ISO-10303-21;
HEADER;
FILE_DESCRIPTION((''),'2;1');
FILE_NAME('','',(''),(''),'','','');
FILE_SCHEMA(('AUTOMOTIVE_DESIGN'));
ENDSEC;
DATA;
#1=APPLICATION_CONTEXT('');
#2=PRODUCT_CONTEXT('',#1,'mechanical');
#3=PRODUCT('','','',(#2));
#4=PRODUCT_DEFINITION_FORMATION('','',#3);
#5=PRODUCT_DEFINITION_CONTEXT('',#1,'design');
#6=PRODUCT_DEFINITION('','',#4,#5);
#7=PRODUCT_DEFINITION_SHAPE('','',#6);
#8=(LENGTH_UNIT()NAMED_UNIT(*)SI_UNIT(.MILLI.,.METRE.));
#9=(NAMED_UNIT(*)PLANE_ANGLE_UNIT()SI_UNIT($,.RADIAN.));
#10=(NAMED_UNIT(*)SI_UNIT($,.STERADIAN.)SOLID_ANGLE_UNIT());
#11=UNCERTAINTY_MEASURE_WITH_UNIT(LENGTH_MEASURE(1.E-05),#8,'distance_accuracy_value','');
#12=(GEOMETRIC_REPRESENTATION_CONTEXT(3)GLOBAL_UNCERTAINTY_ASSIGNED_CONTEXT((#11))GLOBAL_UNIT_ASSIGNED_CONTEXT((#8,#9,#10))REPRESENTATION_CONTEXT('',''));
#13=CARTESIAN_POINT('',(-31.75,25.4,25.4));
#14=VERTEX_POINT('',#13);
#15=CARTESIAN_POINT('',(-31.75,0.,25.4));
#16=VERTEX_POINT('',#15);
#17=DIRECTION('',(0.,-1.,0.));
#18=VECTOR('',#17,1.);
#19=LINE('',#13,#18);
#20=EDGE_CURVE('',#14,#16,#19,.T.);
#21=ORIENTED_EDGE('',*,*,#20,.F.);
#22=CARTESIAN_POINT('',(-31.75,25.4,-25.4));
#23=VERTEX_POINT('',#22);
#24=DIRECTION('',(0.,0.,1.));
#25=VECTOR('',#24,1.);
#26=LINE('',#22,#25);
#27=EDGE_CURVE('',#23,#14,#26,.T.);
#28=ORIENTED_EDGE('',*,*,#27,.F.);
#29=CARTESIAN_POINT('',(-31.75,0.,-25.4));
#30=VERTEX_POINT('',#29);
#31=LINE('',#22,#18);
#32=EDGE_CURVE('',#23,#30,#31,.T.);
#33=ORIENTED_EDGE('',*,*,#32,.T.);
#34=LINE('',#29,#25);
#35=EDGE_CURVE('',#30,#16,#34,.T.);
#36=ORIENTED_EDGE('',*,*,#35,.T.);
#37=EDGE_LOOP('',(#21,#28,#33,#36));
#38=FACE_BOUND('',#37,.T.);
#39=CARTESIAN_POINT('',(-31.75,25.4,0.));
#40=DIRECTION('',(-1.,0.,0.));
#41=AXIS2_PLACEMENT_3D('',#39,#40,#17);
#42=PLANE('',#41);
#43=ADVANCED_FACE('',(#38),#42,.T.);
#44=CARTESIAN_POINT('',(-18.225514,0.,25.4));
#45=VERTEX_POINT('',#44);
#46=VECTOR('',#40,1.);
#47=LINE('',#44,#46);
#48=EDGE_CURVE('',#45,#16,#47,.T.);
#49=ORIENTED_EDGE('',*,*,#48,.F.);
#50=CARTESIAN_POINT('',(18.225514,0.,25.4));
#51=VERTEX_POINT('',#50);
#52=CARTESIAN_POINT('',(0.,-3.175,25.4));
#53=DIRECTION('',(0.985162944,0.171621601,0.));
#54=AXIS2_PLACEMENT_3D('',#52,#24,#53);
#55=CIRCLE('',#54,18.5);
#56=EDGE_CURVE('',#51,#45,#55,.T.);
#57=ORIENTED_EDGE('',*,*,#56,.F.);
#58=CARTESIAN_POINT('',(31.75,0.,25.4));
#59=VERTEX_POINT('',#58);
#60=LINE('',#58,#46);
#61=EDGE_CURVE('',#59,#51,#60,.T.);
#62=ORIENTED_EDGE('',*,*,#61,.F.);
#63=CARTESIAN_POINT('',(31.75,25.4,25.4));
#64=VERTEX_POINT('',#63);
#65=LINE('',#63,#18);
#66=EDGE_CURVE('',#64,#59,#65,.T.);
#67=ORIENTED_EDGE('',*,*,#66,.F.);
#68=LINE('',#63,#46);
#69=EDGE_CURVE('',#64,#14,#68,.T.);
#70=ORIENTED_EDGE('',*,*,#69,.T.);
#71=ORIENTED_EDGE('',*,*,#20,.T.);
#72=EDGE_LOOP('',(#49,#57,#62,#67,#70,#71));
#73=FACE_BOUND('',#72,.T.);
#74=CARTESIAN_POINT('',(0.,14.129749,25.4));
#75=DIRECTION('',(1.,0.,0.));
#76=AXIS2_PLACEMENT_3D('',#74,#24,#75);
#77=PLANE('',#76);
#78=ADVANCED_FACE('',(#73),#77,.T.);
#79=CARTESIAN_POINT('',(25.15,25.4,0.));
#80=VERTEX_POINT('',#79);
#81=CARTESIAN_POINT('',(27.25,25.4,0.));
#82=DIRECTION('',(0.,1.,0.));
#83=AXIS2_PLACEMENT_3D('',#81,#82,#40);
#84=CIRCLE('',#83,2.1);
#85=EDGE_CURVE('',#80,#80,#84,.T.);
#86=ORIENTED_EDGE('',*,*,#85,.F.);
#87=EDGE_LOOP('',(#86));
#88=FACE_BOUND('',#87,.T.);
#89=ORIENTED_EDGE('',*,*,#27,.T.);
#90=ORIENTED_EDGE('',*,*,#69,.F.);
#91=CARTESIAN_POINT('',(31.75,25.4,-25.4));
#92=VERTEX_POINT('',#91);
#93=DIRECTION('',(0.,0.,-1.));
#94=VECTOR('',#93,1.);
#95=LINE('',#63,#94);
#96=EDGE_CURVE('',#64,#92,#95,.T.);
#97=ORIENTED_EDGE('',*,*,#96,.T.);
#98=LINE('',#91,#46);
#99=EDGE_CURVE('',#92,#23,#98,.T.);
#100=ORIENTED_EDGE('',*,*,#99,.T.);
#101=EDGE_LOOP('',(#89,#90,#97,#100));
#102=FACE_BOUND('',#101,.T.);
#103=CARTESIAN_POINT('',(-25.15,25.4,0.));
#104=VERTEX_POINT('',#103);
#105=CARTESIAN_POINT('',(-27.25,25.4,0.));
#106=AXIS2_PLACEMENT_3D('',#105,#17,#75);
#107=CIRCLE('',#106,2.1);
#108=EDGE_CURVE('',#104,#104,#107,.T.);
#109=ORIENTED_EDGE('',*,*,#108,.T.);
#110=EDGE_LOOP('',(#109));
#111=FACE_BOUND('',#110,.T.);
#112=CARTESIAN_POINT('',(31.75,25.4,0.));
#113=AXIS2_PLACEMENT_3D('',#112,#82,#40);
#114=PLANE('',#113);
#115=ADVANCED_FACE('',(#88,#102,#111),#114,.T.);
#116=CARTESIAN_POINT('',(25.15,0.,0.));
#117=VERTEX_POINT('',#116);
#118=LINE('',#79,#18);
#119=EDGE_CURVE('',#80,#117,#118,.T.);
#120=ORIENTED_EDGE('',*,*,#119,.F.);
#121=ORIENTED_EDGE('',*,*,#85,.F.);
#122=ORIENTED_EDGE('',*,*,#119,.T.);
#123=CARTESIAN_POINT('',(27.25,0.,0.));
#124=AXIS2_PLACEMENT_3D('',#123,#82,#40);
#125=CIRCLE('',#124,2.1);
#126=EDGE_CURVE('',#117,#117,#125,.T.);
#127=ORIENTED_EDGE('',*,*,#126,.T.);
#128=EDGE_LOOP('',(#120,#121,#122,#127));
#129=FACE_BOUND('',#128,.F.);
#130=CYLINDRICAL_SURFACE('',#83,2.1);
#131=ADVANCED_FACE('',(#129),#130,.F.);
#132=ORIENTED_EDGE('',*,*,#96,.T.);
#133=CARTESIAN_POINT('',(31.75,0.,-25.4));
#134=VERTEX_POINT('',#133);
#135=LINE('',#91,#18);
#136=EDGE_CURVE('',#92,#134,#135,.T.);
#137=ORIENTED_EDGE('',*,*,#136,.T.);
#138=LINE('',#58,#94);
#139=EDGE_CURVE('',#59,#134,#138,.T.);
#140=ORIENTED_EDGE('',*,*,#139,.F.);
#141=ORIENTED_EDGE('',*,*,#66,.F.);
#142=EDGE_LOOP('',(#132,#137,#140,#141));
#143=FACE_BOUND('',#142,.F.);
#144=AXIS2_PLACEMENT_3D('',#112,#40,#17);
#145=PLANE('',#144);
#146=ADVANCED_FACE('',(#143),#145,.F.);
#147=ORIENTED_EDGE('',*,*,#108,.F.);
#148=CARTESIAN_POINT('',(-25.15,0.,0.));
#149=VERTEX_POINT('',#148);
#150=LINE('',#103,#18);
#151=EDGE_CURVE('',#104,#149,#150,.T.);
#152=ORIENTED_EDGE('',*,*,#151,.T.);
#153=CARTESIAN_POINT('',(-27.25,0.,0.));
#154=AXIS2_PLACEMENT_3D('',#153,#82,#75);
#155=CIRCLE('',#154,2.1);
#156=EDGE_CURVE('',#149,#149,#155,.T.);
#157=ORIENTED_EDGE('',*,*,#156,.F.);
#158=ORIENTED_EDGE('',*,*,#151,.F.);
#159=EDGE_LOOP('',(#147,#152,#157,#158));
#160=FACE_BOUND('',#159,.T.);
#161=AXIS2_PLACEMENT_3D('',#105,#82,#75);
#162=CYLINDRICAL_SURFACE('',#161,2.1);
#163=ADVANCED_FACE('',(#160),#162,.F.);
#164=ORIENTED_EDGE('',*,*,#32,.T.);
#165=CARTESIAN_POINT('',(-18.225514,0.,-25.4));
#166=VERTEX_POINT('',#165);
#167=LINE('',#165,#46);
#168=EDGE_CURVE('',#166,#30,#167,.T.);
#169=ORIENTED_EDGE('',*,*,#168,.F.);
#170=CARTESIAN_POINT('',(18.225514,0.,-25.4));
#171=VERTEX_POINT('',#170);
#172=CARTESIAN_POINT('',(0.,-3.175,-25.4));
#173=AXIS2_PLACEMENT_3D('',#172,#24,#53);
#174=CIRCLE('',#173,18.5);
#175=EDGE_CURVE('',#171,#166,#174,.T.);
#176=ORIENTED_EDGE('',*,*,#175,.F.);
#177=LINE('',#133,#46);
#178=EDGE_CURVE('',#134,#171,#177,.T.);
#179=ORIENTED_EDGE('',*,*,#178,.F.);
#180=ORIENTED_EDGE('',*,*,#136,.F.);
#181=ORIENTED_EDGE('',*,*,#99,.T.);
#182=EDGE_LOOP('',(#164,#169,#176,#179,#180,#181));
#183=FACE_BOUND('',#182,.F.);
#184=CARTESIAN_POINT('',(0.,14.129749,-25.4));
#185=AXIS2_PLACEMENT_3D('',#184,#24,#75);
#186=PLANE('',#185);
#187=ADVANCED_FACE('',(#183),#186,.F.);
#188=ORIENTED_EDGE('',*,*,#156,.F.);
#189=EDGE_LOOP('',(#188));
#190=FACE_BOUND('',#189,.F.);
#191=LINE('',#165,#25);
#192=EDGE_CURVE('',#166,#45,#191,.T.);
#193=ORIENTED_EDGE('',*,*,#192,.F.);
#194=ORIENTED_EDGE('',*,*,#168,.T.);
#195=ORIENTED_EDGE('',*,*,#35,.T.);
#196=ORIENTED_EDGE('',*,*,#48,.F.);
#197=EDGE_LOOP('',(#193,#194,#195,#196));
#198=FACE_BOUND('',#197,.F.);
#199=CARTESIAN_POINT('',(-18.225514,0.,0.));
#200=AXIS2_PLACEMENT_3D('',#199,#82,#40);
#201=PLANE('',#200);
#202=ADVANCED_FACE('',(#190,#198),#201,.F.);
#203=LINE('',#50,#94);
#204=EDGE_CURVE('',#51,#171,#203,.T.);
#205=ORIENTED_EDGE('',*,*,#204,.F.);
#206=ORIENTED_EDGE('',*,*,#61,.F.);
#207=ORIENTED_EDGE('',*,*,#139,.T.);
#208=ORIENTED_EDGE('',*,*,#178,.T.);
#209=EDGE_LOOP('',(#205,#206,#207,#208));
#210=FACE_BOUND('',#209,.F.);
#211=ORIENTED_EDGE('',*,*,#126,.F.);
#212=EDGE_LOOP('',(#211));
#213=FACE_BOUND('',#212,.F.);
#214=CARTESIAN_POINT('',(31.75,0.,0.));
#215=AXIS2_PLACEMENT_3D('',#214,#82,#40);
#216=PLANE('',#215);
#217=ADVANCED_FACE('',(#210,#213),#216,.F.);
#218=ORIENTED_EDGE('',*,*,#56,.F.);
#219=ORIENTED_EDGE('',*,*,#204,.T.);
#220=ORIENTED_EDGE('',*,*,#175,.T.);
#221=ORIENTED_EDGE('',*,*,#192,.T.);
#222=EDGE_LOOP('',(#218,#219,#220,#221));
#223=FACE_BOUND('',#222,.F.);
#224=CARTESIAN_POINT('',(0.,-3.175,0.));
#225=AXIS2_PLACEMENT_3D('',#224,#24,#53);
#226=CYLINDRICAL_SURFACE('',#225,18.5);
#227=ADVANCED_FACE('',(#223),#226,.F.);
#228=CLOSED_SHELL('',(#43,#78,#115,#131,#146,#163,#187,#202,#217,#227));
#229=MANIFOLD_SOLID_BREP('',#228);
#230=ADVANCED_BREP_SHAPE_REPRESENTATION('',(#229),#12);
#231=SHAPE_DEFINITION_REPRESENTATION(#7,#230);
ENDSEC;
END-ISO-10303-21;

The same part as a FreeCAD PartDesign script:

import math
import FreeCAD as App
import Part
import Sketcher

doc = App.newDocument("Part")
body = doc.addObject("PartDesign::Body", "Body")

# Sketch on XY plane
sketch1 = doc.addObject("Sketcher::SketchObject", "Sketch")
body.addObject(sketch1)
sketch1.AttachmentSupport = (doc.XY_Plane, [""])
sketch1.MapMode = "FlatFace"
sketch1.addGeometry([
    Part.LineSegment(App.Vector(31.75, 25.4, 0), App.Vector(-31.75, 25.4, 0)),  # 0
    Part.LineSegment(App.Vector(-31.75, 25.4, 0), App.Vector(-31.75, 0, 0)),  # 1
    Part.LineSegment(App.Vector(-31.75, 0, 0), App.Vector(-18.225514, 0, 0)),  # 2
    Part.ArcOfCircle(Part.Circle(App.Vector(0, -3.175, 0), App.Vector(0, 0, 1), 18.5), math.radians(9.882116), math.radians(170.117884)),  # 3
    Part.LineSegment(App.Vector(18.225514, 0, 0), App.Vector(31.75, 0, 0)),  # 4
    Part.LineSegment(App.Vector(31.75, 0, 0), App.Vector(31.75, 25.4, 0)),  # 5
], False)
sketch1.addConstraint([
    Sketcher.Constraint("Coincident", 0, 2, 1, 1),
    Sketcher.Constraint("Coincident", 1, 2, 2, 1),
    Sketcher.Constraint("Coincident", 2, 2, 3, 2),
    Sketcher.Constraint("Coincident", 3, 1, 4, 1),
    Sketcher.Constraint("Coincident", 4, 2, 5, 1),
    Sketcher.Constraint("Coincident", 5, 2, 0, 1),
    Sketcher.Constraint("Horizontal", 0),
    Sketcher.Constraint("Vertical", 1),
    Sketcher.Constraint("Horizontal", 2),
    Sketcher.Constraint("Horizontal", 4),
    Sketcher.Constraint("Vertical", 5),
    Sketcher.Constraint("Symmetric", 2, 2, 3, 1, -1, 1),
    Sketcher.Constraint("Symmetric", 1, 2, 4, 2, -2),
    Sketcher.Constraint("Radius", 3, 18.5),
    Sketcher.Constraint("DistanceX", 0, 2, 0, 1, 63.5),
    Sketcher.Constraint("DistanceY", 1, 2, 1, 1, 25.4),
    Sketcher.Constraint("DistanceY", 3, 3, -1, 1, 3.175),
])
pad1 = doc.addObject("PartDesign::Pad", "Pad")
body.addObject(pad1)
pad1.Profile = sketch1
pad1.Length = 50.8
pad1.Midplane = True

# Sketch on XZ plane
sketch2 = doc.addObject("Sketcher::SketchObject", "Sketch001")
body.addObject(sketch2)
sketch2.AttachmentSupport = (doc.XZ_Plane, [""])
sketch2.MapMode = "FlatFace"
sketch2.AttachmentOffset = App.Placement(App.Vector(0, 0, -25.4), App.Rotation())
sketch2.addGeometry(Part.Circle(App.Vector(27.25, 0, 0), App.Vector(0, 0, 1), 2.1), False)
sketch2.addConstraint([
    Sketcher.Constraint("PointOnObject", 0, 3, -1),
    Sketcher.Constraint("Diameter", 0, 4.2),
    Sketcher.Constraint("DistanceX", -1, 1, 0, 3, 27.25),
])
pocket1 = doc.addObject("PartDesign::Pocket", "Pocket")
body.addObject(pocket1)
pocket1.Profile = sketch2
pocket1.Type = "ThroughAll"
pocket1.Reversed = True
doc.recompute()

mirrored = doc.addObject("PartDesign::Mirrored", "Mirrored")
body.addObject(mirrored)
mirrored.Originals = [pocket1]
mirrored.MirrorPlane = (doc.YZ_Plane, [""])
body.Tip = mirrored

doc.recompute()
